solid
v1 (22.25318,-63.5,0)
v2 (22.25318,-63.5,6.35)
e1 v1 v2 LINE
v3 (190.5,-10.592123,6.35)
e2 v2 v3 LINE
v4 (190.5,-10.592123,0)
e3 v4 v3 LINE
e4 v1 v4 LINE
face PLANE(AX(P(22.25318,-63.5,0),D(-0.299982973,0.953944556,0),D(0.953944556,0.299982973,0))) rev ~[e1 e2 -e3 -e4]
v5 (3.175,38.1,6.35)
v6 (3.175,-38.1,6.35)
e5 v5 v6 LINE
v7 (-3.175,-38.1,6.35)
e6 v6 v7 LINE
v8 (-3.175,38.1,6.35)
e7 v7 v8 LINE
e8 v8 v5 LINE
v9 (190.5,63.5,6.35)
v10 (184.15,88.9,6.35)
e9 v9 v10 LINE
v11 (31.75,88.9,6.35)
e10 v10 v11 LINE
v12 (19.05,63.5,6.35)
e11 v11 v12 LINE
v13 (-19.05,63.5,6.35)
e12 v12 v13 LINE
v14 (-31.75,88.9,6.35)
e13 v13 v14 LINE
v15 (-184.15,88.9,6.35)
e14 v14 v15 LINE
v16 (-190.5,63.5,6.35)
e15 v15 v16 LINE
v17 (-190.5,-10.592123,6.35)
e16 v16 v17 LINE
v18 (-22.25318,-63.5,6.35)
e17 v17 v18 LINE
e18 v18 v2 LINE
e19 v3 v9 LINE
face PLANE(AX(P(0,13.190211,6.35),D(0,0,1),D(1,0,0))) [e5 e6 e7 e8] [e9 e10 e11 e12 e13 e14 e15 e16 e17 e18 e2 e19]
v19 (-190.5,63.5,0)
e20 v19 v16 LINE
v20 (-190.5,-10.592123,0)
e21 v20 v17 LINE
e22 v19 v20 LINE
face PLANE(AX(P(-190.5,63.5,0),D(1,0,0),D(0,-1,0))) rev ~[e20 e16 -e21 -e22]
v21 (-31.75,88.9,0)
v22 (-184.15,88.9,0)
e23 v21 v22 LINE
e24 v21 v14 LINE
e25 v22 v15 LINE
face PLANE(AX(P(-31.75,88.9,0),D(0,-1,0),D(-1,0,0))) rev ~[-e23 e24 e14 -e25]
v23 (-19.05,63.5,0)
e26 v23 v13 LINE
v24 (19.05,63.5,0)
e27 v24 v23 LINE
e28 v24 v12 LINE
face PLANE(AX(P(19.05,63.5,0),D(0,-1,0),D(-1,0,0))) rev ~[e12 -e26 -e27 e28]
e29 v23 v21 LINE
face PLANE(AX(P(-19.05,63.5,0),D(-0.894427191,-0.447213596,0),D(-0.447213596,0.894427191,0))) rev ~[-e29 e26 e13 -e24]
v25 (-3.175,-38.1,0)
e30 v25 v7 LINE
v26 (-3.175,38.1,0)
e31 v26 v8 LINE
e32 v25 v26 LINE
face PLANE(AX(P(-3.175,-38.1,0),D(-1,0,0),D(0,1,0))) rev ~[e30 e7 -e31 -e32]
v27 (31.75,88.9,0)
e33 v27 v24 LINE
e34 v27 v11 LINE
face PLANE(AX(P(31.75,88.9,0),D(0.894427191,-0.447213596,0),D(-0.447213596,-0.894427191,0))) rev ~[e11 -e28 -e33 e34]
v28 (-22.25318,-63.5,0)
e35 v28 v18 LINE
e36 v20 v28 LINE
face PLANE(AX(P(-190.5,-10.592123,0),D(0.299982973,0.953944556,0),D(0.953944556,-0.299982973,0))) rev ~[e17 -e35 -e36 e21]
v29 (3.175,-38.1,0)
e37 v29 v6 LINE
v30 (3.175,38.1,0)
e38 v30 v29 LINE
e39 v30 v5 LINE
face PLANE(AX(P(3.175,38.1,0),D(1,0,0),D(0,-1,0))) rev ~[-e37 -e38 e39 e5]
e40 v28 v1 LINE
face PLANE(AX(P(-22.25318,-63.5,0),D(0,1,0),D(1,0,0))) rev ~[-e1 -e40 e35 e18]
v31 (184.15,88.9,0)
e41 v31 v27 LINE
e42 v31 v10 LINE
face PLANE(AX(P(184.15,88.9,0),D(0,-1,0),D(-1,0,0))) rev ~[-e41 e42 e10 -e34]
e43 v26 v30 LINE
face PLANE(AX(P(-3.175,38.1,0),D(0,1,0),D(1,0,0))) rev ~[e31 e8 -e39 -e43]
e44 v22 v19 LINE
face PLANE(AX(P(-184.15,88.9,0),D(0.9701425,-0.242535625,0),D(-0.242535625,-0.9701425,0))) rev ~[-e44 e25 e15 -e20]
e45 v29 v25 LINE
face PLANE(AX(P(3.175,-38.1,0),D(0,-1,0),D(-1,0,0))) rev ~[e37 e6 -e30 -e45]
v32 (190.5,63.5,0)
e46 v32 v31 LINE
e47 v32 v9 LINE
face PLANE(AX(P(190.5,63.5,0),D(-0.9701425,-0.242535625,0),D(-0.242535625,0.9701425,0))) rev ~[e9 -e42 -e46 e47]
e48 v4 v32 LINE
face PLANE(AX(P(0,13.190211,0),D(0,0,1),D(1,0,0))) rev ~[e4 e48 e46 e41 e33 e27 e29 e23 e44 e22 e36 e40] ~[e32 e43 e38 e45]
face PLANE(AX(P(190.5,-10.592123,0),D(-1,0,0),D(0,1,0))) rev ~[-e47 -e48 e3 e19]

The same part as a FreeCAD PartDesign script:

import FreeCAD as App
import Part
import Sketcher
Q = App.Units.Quantity


def add_polygon(sketch, points):
    """Adds a closed chain of lines whose ends are joined by coincident constraints."""
    first, n = sketch.GeometryCount, len(points)
    for a, b in zip(points, points[1:] + points[:1]):
        sketch.addGeometry(Part.LineSegment(App.Vector(*a, 0), App.Vector(*b, 0)), False)
    for i in range(n):
        sketch.addConstraint(Sketcher.Constraint("Coincident", first + i, 2, first + (i + 1) % n, 1))

doc = App.newDocument("Part")
body = doc.addObject("PartDesign::Body", "Body")

# Sketch on XY plane
sketch1 = body.newObject("Sketcher::SketchObject", "Sketch")
sketch1.AttachmentSupport = (doc.getObject("XY_Plane"), [""])
sketch1.MapMode = "FlatFace"
add_polygon(sketch1, [(-190.5, 63.5), (-190.5, -10.592123), (-22.25318, -63.5), (22.25318, -63.5), (190.5, -10.592123), (190.5, 63.5), (184.15, 88.9), (31.75, 88.9), (19.05, 63.5), (-19.05, 63.5), (-31.75, 88.9), (-184.15, 88.9)])  # lines 0-11
add_polygon(sketch1, [(3.175, 38.1), (3.175, -38.1), (-3.175, -38.1), (-3.175, 38.1)])  # lines 12-15
sketch1.addConstraint([
    Sketcher.Constraint("Vertical", 0),
    Sketcher.Constraint("Horizontal", 2),
    Sketcher.Constraint("Vertical", 4),
    Sketcher.Constraint("Horizontal", 6),
    Sketcher.Constraint("Horizontal", 8),
    Sketcher.Constraint("Horizontal", 10),
    Sketcher.Constraint("Vertical", 12),
    Sketcher.Constraint("Horizontal", 13),
    Sketcher.Constraint("Vertical", 14),
    Sketcher.Constraint("Horizontal", 15),
    Sketcher.Constraint("Symmetric", 12, 2, 14, 2, -1, 1),
    Sketcher.Constraint("Symmetric", 0, 2, 3, 2, -2),
    Sketcher.Constraint("Symmetric", 6, 2, 9, 2, -2),
    Sketcher.Constraint("Horizontal", 4, 2, 7, 2),
    Sketcher.Constraint("Horizontal", 8, 2, 11, 2),
    Sketcher.Constraint("Equal", 6, 10),
    Sketcher.Constraint("Equal", 1, 3),
    Sketcher.Constraint("Equal", 7, 9),
    Sketcher.Constraint("DistanceX", 6, 2, 6, 1, Q("6 in")),
    Sketcher.Constraint("DistanceY", 12, 2, 12, 1, Q("3 in")),
    Sketcher.Constraint("DistanceX", 8, 2, 8, 1, Q("1.5 in")),
    Sketcher.Constraint("DistanceX", 0, 2, 3, 2, Q("15 in")),
    Sketcher.Constraint("DistanceY", 2, 2, 4, 2, Q("5 in")),
    Sketcher.Constraint("DistanceY", 4, 2, 5, 2, Q("1 in")),
    Sketcher.Constraint("DistanceX", 8, 2, 6, 2, Q("2 in")),
    Sketcher.Constraint("DistanceY", 2, 2, 12, 2, Q("1 in")),
    Sketcher.Constraint("DistanceX", 13, 2, 13, 1, Q("0.25 in")),
    Sketcher.Constraint("Distance", 1, 176.3696),
    Sketcher.Constraint("DistanceX", 2, 1, 2, 2, 44.50636),
])
pad1 = body.newObject("PartDesign::Pad", "Pad")
pad1.Profile = sketch1
pad1.Length = Q("0.25 in")

doc.recompute()
